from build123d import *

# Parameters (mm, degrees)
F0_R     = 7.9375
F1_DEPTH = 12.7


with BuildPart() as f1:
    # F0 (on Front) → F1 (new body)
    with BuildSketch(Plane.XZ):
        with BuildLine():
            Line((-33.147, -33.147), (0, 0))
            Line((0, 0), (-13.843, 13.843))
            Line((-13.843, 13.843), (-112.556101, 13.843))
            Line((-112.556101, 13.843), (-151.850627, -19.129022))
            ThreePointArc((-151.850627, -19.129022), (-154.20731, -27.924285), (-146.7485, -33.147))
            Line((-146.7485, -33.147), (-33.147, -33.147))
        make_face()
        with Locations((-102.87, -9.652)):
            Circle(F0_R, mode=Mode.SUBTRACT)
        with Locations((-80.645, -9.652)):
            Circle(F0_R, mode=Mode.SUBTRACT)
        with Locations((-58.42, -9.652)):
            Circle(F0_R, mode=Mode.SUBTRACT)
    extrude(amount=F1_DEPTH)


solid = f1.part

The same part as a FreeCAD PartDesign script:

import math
import FreeCAD as App
import Part
import Sketcher
from FreeCAD import Vector
Q = App.Units.Quantity

doc = App.newDocument("Part")
params = doc.addObject("Spreadsheet::Sheet", "Params")
for row, (alias, value) in enumerate([
    ("sketch1_diameter", "0.625 in"),
    ("pad1_length", "0.5 in"),
], start=1):
    params.set(f"A{row}", alias)
    params.set(f"B{row}", "=" + value)
    params.setAlias(f"B{row}", alias)

body = doc.addObject("PartDesign::Body", "Body")

sketch1 = body.newObject("Sketcher::SketchObject", "Sketch")
sketch1.AttachmentSupport = (doc.getObject("XZ_Plane"), [""])
sketch1.MapMode = "FlatFace"
sketch1.addGeometry(Part.LineSegment(Vector(-33, -33, 0), Vector(0, 0, 0)), False)
sketch1.addGeometry(Part.LineSegment(Vector(0, 0, 0), Vector(-14, 14, 0)), False)
sketch1.addGeometry(Part.LineSegment(Vector(-14, 14, 0), Vector(-113, 14, 0)), False)
sketch1.addGeometry(Part.LineSegment(Vector(-113, 14, 0), Vector(-152, -19, 0)), False)
sketch1.addGeometry(Part.ArcOfCircle(Part.Circle(Vector(-147, -25, 0), Vector(0, 0, 1), 8), math.radians(130), math.radians(270)), False)
sketch1.addGeometry(Part.LineSegment(Vector(-147, -33, 0), Vector(-33, -33, 0)), False)
sketch1.addGeometry(Part.Circle(Vector(-103, -10, 0), Vector(0, 0, 1), 8), False)
sketch1.addGeometry(Part.Circle(Vector(-81, -10, 0), Vector(0, 0, 1), 8), False)
sketch1.addGeometry(Part.Circle(Vector(-58, -10, 0), Vector(0, 0, 1), 8), False)
sketch1.addConstraint(Sketcher.Constraint("Coincident", 0, 2, 1, 1))
sketch1.addConstraint(Sketcher.Constraint("Coincident", 1, 2, 2, 1))
sketch1.addConstraint(Sketcher.Constraint("Coincident", 2, 2, 3, 1))
sketch1.addConstraint(Sketcher.Constraint("Tangent", 3, 2, 4, 1))
sketch1.addConstraint(Sketcher.Constraint("Tangent", 4, 2, 5, 1))
sketch1.addConstraint(Sketcher.Constraint("Coincident", 5, 2, 0, 1))
sketch1.addConstraint(Sketcher.Constraint("Horizontal", 2))
sketch1.addConstraint(Sketcher.Constraint("Horizontal", 5))
sketch1.addConstraint(Sketcher.Constraint("Coincident", 0, 2, -1, 1))
sketch1.addConstraint(Sketcher.Constraint("Equal", 4, 6))
sketch1.addConstraint(Sketcher.Constraint("Equal", 6, 7))
sketch1.addConstraint(Sketcher.Constraint("Equal", 7, 8))
sketch1.addConstraint(Sketcher.Constraint("Perpendicular", 0, 1))
sketch1.addConstraint(Sketcher.Constraint("Horizontal", 6, 3, 7, 3))
sketch1.addConstraint(Sketcher.Constraint("Horizontal", 7, 3, 8, 3))
sketch1.addConstraint(Sketcher.Constraint("Diameter", 6, Q("0.625 in")))
sketch1.addConstraint(Sketcher.Constraint("Angle", 0, Q("45 deg")))
sketch1.addConstraint(Sketcher.Constraint("Angle", 3, Q("-140 deg")))
sketch1.addConstraint(Sketcher.Constraint("DistanceX", 8, 3, -1, 1, Q("2.3 in")))
sketch1.addConstraint(Sketcher.Constraint("DistanceX", 6, 3, -1, 1, Q("4.05 in")))
sketch1.addConstraint(Sketcher.Constraint("DistanceY", 6, 3, -1, 1, Q("0.38 in")))
sketch1.addConstraint(Sketcher.Constraint("DistanceX", 7, 3, 1, 2, Q("2.63 in")))
sketch1.addConstraint(Sketcher.Constraint("DistanceY", 4, 2, 2, 2, Q("1.85 in")))
sketch1.addConstraint(Sketcher.Constraint("DistanceX", 5, 2, 1, 2, Q("0.76 in")))
sketch1.addConstraint(Sketcher.Constraint("DistanceX", 5, 1, 5, 2, Q("4.4725 in")))
sketch1.setExpression("Constraints[15]", "Params.sketch1_diameter")
pad1 = body.newObject("PartDesign::Pad", "Pad")
pad1.Profile = sketch1
pad1.setExpression("Length", "Params.pad1_length")

doc.recompute()
